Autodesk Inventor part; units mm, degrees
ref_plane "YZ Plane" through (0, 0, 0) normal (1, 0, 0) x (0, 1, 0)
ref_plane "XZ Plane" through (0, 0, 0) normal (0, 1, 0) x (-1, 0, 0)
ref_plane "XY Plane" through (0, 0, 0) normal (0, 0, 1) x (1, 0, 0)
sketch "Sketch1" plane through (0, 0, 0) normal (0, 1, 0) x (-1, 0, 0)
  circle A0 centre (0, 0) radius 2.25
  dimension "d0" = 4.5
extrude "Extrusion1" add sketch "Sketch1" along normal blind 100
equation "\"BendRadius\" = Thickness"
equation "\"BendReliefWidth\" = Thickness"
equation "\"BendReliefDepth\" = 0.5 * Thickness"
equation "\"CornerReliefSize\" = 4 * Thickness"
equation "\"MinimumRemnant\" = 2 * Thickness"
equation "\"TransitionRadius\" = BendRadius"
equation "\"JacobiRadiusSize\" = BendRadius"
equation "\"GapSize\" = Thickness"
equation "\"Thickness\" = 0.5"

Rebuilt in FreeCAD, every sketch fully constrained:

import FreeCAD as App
import Part
import Sketcher
from FreeCAD import Vector
Q = App.Units.Quantity

doc = App.newDocument("Part")
body = doc.addObject("PartDesign::Body", "Body")

# Sketch on XZ plane
sketch1 = doc.addObject("Sketcher::SketchObject", "Sketch")
body.addObject(sketch1)
sketch1.AttachmentSupport = (doc.XZ_Plane, [""])
sketch1.MapMode = "FlatFace"
sketch1.addGeometry(Part.Circle(Vector(0, 0, 0), Vector(0, 0, 1), 2.2), False)
sketch1.addConstraint(Sketcher.Constraint("Coincident", 0, 3, -1, 1))
sketch1.addConstraint(Sketcher.Constraint("Diameter", 0, Q("4.5 mm")))
pad1 = doc.addObject("PartDesign::Pad", "Pad")
body.addObject(pad1)
pad1.Profile = sketch1
pad1.Length = 100
pad1.Reversed = True

doc.recompute()
